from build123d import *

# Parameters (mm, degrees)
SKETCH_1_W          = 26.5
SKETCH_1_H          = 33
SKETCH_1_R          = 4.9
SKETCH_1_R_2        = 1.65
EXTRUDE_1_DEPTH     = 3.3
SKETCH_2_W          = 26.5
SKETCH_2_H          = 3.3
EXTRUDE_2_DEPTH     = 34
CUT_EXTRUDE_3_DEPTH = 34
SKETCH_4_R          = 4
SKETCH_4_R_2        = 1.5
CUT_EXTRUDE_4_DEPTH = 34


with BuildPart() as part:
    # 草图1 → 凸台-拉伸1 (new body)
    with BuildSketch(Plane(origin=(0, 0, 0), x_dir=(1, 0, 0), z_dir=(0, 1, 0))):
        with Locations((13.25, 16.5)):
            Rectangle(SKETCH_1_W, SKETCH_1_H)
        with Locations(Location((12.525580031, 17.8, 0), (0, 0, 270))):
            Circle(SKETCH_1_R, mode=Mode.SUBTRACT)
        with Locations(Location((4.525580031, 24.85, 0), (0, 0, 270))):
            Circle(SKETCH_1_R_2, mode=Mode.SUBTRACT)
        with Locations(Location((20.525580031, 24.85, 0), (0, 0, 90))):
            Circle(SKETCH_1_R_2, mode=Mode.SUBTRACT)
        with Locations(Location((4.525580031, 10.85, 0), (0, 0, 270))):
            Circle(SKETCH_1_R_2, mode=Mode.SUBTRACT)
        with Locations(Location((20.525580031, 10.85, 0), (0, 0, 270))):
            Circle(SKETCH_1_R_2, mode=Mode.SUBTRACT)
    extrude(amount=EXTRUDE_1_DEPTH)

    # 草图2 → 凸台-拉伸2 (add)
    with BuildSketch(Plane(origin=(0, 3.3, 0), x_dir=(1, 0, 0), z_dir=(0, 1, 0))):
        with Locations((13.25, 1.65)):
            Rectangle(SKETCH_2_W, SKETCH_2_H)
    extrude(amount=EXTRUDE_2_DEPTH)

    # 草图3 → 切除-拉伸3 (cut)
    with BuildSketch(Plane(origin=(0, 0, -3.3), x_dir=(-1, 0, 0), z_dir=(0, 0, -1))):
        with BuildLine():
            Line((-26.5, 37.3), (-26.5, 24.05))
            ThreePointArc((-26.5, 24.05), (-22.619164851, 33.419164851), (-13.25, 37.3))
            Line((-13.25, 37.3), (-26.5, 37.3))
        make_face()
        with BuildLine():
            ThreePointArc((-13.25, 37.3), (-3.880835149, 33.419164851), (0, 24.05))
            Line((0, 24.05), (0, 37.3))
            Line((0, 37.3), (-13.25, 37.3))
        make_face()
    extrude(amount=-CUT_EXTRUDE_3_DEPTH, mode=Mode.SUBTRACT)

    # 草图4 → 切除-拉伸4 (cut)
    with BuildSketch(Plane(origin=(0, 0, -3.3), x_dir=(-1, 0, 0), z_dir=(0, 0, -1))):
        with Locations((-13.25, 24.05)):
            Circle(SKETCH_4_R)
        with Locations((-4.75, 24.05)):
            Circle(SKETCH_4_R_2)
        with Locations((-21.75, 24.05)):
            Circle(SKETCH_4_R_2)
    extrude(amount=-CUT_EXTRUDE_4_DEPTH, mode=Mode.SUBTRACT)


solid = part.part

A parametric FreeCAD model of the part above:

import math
import FreeCAD as App
import Part
import Sketcher
Q = App.Units.Quantity


def add_polygon(sketch, points):
    """Adds a closed chain of lines whose ends are joined by coincident constraints."""
    first, n = sketch.GeometryCount, len(points)
    for a, b in zip(points, points[1:] + points[:1]):
        sketch.addGeometry(Part.LineSegment(App.Vector(*a, 0), App.Vector(*b, 0)), False)
    for i in range(n):
        sketch.addConstraint(Sketcher.Constraint("Coincident", first + i, 2, first + (i + 1) % n, 1))

doc = App.newDocument("Part")
body = doc.addObject("PartDesign::Body", "Body")

# Sketch on XZ plane
sketch1 = body.newObject("Sketcher::SketchObject", "Sketch")
sketch1.AttachmentSupport = (doc.getObject("XZ_Plane"), [""])
sketch1.MapMode = "FlatFace"
add_polygon(sketch1, [(0, -33), (0, 0), (26.5, 0), (26.5, -33)])  # lines 0-3
sketch1.addGeometry(Part.Circle(App.Vector(4.5, -10.8, 0), App.Vector(0, 0, 1), 1.6), False)  # 4
sketch1.addGeometry(Part.Circle(App.Vector(20.5, -10.8, 0), App.Vector(0, 0, 1), 1.6), False)  # 5
sketch1.addGeometry(Part.Circle(App.Vector(12.5, -17.8, 0), App.Vector(0, 0, 1), 4.9), False)  # 6
sketch1.addGeometry(Part.Circle(App.Vector(4.5, -24.9, 0), App.Vector(0, 0, 1), 1.6), False)  # 7
sketch1.addGeometry(Part.Circle(App.Vector(20.5, -24.9, 0), App.Vector(0, 0, 1), 1.6), False)  # 8
sketch1.addConstraint([
    Sketcher.Constraint("Vertical", 0),
    Sketcher.Constraint("Horizontal", 1),
    Sketcher.Constraint("Vertical", 2),
    Sketcher.Constraint("Horizontal", 3),
    Sketcher.Constraint("Coincident", 0, 2, -1, 1),
    Sketcher.Constraint("Equal", 4, 5),
    Sketcher.Constraint("Equal", 5, 7),
    Sketcher.Constraint("Equal", 7, 8),
    Sketcher.Constraint("Horizontal", 4, 3, 5, 3),
    Sketcher.Constraint("Horizontal", 7, 3, 8, 3),
    Sketcher.Constraint("Vertical", 4, 3, 7, 3),
    Sketcher.Constraint("Vertical", 5, 3, 8, 3),
    Sketcher.Constraint("Diameter", 4, Q("3.3 mm")),
    Sketcher.Constraint("Diameter", 6, Q("9.8 mm")),
    Sketcher.Constraint("DistanceY", 0, 1, 0, 2, Q("33 mm")),
    Sketcher.Constraint("DistanceX", 1, 1, 1, 2, Q("26.5 mm")),
    Sketcher.Constraint("DistanceX", 4, 3, 5, 3, Q("16 mm")),
    Sketcher.Constraint("DistanceX", 4, 3, 6, 3, Q("8 mm")),
    Sketcher.Constraint("DistanceY", 7, 3, 4, 3, Q("14 mm")),
    Sketcher.Constraint("DistanceY", 6, 3, -1, 1, Q("17.8 mm")),
    Sketcher.Constraint("DistanceY", 4, 3, -1, 1, Q("10.85 mm")),
    Sketcher.Constraint("DistanceX", -1, 1, 4, 3, Q("4.52558 mm")),
])
pad1 = body.newObject("PartDesign::Pad", "Pad")
pad1.Profile = sketch1
pad1.Length = 3.3
pad1.Reversed = True

# Sketch on XZ plane
sketch2 = body.newObject("Sketcher::SketchObject", "Sketch001")
sketch2.AttachmentSupport = (doc.getObject("XZ_Plane"), [""])
sketch2.MapMode = "FlatFace"
sketch2.AttachmentOffset = App.Placement(App.Vector(0, 0, -3.3), App.Rotation())
add_polygon(sketch2, [(0, -3.3), (0, 0), (26.5, 0), (26.5, -3.3)])  # lines 0-3
sketch2.addConstraint([
    Sketcher.Constraint("Vertical", 0),
    Sketcher.Constraint("Horizontal", 1),
    Sketcher.Constraint("Vertical", 2),
    Sketcher.Constraint("Horizontal", 3),
    Sketcher.Constraint("Coincident", 0, 2, -1, 1),
    Sketcher.Constraint("DistanceX", 1, 1, 1, 2, Q("26.5 mm")),
    Sketcher.Constraint("DistanceY", 0, 1, 0, 2, Q("3.3 mm")),
])
pad2 = body.newObject("PartDesign::Pad", "Pad001")
pad2.Profile = sketch2
pad2.Length = 34
pad2.Reversed = True

# Sketch on XY plane
sketch3 = body.newObject("Sketcher::SketchObject", "Sketch002")
sketch3.AttachmentSupport = (doc.getObject("XY_Plane"), [""])
sketch3.MapMode = "FlatFace"
sketch3.AttachmentOffset = App.Placement(App.Vector(0, 0, -3.3), App.Rotation())
sketch3.addGeometry([
    Part.LineSegment(App.Vector(26, 37, 0), App.Vector(26, 24, 0)),  # 0
    Part.ArcOfCircle(Part.Circle(App.Vector(13, 24, 0), App.Vector(0, 0, 1), 13), math.radians(0), math.radians(90)),  # 1
    Part.LineSegment(App.Vector(13, 37, 0), App.Vector(26, 37, 0)),  # 2
    Part.ArcOfCircle(Part.Circle(App.Vector(13, 24, 0), App.Vector(0, 0, 1), 13), math.radians(90), math.radians(180)),  # 3
    Part.LineSegment(App.Vector(0, 24, 0), App.Vector(0, 37, 0)),  # 4
    Part.LineSegment(App.Vector(0, 37, 0), App.Vector(13, 37, 0)),  # 5
], False)
sketch3.addConstraint([
    Sketcher.Constraint("Tangent", 0, 2, 1, 1),
    Sketcher.Constraint("Tangent", 1, 2, 2, 1),
    Sketcher.Constraint("Coincident", 2, 2, 0, 1),
    Sketcher.Constraint("Tangent", 3, 2, 4, 1),
    Sketcher.Constraint("Coincident", 4, 2, 5, 1),
    Sketcher.Constraint("Tangent", 5, 2, 3, 1),
    Sketcher.Constraint("Vertical", 0),
    Sketcher.Constraint("Horizontal", 2),
    Sketcher.Constraint("Vertical", 4),
    Sketcher.Constraint("Horizontal", 5),
    Sketcher.Constraint("Coincident", 3, 3, 1, 3),
    Sketcher.Constraint("Equal", 1, 3),
    Sketcher.Constraint("PointOnObject", 3, 2, -2),
    Sketcher.Constraint("Radius", 1, Q("13.25 mm")),
    Sketcher.Constraint("DistanceY", -1, 1, 1, 2, Q("37.3 mm")),
])
pocket1 = body.newObject("PartDesign::Pocket", "Pocket")
pocket1.Profile = sketch3
pocket1.Length = 34
pocket1.Reversed = True

# Sketch on XY plane
sketch4 = body.newObject("Sketcher::SketchObject", "Sketch003")
sketch4.AttachmentSupport = (doc.getObject("XY_Plane"), [""])
sketch4.MapMode = "FlatFace"
sketch4.AttachmentOffset = App.Placement(App.Vector(0, 0, -3.3), App.Rotation())
sketch4.addGeometry([
    Part.Circle(App.Vector(13.2, 24.1, 0), App.Vector(0, 0, 1), 4),
    Part.Circle(App.Vector(4.8, 24.1, 0), App.Vector(0, 0, 1), 1.5),
    Part.Circle(App.Vector(21.8, 24.1, 0), App.Vector(0, 0, 1), 1.5),
], False)
sketch4.addConstraint([
    Sketcher.Constraint("Equal", 1, 2),
    Sketcher.Constraint("Horizontal", 0, 3, 1, 3),
    Sketcher.Constraint("Horizontal", 1, 3, 2, 3),
    Sketcher.Constraint("Diameter", 0, Q("8 mm")),
    Sketcher.Constraint("Diameter", 1, Q("3 mm")),
    Sketcher.Constraint("DistanceX", 1, 3, 2, 3, Q("17 mm")),
    Sketcher.Constraint("DistanceX", 1, 3, 0, 3, Q("8.5 mm")),
    Sketcher.Constraint("DistanceX", -1, 1, 0, 3, Q("13.25 mm")),
    Sketcher.Constraint("DistanceY", -1, 1, 0, 3, Q("24.05 mm")),
])
pocket2 = body.newObject("PartDesign::Pocket", "Pocket001")
pocket2.Profile = sketch4
pocket2.Length = 34
pocket2.Reversed = True

doc.recompute()
